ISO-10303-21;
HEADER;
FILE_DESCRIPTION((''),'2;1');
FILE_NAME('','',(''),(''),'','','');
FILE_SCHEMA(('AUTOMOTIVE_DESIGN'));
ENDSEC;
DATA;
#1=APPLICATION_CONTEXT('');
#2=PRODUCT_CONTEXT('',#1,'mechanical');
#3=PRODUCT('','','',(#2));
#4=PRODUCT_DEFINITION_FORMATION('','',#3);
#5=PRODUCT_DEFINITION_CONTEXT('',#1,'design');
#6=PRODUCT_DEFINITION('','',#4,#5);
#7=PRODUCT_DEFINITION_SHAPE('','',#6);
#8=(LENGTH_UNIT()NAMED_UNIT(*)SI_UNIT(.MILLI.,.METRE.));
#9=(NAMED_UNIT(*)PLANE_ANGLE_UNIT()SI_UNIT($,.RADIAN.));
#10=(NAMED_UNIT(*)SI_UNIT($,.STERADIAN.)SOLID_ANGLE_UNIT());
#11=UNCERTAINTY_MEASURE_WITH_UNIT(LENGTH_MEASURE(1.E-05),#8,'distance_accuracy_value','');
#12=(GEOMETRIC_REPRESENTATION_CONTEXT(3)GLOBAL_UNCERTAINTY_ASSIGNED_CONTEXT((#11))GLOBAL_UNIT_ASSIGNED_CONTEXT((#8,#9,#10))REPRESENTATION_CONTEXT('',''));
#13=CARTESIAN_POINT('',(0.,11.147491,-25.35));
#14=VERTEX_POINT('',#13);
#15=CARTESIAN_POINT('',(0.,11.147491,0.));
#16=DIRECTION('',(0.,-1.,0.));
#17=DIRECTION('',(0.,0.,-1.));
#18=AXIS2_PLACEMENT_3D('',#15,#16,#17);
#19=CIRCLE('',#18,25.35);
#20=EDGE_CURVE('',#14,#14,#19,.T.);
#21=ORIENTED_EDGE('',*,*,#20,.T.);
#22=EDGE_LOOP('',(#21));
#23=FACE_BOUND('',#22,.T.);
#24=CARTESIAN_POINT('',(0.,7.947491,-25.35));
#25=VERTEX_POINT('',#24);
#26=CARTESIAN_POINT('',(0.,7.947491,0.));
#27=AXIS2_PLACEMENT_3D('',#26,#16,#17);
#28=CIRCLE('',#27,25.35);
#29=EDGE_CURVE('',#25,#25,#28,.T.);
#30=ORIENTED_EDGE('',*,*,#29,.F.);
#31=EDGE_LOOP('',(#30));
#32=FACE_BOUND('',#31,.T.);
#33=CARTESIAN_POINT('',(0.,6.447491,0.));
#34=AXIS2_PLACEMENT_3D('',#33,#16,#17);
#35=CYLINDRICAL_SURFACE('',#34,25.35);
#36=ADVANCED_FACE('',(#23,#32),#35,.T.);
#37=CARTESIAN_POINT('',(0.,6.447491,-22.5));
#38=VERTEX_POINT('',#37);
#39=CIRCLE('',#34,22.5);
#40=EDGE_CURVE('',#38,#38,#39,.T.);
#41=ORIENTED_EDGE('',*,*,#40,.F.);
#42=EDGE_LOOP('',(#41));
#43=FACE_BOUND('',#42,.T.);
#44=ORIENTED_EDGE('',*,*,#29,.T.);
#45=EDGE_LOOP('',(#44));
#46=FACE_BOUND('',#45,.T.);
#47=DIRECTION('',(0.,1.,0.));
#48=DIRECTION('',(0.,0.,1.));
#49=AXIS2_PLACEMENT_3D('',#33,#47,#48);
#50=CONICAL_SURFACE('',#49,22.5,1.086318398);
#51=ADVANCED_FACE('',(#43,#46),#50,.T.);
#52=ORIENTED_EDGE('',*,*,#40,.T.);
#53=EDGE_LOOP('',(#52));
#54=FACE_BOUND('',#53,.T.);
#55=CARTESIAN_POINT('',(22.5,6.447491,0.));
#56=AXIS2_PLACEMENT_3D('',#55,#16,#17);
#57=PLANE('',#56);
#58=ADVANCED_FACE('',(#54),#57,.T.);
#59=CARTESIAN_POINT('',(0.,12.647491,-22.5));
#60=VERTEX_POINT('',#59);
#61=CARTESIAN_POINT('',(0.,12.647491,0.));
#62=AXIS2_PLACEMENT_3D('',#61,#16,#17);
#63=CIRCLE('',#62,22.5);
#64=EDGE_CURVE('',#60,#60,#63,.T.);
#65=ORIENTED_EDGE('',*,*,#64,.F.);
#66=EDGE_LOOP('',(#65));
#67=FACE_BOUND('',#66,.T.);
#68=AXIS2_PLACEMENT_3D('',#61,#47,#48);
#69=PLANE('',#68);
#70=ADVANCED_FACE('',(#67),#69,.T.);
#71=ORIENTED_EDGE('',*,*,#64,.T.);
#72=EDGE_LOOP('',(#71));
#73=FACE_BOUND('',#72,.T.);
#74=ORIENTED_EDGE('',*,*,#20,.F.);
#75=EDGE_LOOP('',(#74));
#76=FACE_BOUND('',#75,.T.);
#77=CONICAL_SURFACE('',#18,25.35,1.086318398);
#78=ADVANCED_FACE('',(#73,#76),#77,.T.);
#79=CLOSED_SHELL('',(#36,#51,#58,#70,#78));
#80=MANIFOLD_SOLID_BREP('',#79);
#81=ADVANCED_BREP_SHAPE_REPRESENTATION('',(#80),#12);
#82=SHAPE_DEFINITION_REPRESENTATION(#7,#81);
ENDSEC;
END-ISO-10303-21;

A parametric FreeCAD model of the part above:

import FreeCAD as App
import Part
import Sketcher

V = App.Vector


def add_polygon(sketch, points):
    """Adds a closed chain of lines whose ends are joined by coincident constraints."""
    first, n = sketch.GeometryCount, len(points)
    for a, b in zip(points, points[1:] + points[:1]):
        sketch.addGeometry(Part.LineSegment(App.Vector(*a, 0), App.Vector(*b, 0)), False)
    for i in range(n):
        sketch.addConstraint(Sketcher.Constraint("Coincident", first + i, 2, first + (i + 1) % n, 1))

doc = App.newDocument("Part")
body = doc.addObject("PartDesign::Body", "Body")

# Sketch on XY plane
sketch1 = body.newObject("Sketcher::SketchObject", "Sketch")
sketch1.AttachmentSupport = (doc.getObject("XY_Plane"), [""])
sketch1.MapMode = "FlatFace"
add_polygon(sketch1, [(0, 12.647491), (0, 6.447491), (22.5, 6.447491), (25.35, 7.947491), (25.35, 11.147491), (22.5, 12.647491)])  # lines 0-5
sketch1.addConstraint([
    Sketcher.Constraint("Vertical", 0),
    Sketcher.Constraint("Horizontal", 1),
    Sketcher.Constraint("Vertical", 3),
    Sketcher.Constraint("Horizontal", 5),
    Sketcher.Constraint("PointOnObject", 0, 2, -2),
    Sketcher.Constraint("Vertical", 1, 2, 4, 2),
    Sketcher.Constraint("Equal", 2, 4),
    Sketcher.Constraint("DistanceX", 1, 1, 1, 2, 22.5),
    Sketcher.Constraint("DistanceY", 0, 2, 0, 1, 6.2),
    Sketcher.Constraint("DistanceY", 3, 1, 3, 2, 3.2),
    Sketcher.Constraint("DistanceX", -1, 1, 2, 2, 25.35),
    Sketcher.Constraint("DistanceY", -1, 1, 0, 2, 6.447491),
])
revolution = body.newObject("PartDesign::Revolution", "Revolution")
revolution.Profile = sketch1
revolution.ReferenceAxis = (sketch1, ["V_Axis"])
revolution.Angle = 360

doc.recompute()
